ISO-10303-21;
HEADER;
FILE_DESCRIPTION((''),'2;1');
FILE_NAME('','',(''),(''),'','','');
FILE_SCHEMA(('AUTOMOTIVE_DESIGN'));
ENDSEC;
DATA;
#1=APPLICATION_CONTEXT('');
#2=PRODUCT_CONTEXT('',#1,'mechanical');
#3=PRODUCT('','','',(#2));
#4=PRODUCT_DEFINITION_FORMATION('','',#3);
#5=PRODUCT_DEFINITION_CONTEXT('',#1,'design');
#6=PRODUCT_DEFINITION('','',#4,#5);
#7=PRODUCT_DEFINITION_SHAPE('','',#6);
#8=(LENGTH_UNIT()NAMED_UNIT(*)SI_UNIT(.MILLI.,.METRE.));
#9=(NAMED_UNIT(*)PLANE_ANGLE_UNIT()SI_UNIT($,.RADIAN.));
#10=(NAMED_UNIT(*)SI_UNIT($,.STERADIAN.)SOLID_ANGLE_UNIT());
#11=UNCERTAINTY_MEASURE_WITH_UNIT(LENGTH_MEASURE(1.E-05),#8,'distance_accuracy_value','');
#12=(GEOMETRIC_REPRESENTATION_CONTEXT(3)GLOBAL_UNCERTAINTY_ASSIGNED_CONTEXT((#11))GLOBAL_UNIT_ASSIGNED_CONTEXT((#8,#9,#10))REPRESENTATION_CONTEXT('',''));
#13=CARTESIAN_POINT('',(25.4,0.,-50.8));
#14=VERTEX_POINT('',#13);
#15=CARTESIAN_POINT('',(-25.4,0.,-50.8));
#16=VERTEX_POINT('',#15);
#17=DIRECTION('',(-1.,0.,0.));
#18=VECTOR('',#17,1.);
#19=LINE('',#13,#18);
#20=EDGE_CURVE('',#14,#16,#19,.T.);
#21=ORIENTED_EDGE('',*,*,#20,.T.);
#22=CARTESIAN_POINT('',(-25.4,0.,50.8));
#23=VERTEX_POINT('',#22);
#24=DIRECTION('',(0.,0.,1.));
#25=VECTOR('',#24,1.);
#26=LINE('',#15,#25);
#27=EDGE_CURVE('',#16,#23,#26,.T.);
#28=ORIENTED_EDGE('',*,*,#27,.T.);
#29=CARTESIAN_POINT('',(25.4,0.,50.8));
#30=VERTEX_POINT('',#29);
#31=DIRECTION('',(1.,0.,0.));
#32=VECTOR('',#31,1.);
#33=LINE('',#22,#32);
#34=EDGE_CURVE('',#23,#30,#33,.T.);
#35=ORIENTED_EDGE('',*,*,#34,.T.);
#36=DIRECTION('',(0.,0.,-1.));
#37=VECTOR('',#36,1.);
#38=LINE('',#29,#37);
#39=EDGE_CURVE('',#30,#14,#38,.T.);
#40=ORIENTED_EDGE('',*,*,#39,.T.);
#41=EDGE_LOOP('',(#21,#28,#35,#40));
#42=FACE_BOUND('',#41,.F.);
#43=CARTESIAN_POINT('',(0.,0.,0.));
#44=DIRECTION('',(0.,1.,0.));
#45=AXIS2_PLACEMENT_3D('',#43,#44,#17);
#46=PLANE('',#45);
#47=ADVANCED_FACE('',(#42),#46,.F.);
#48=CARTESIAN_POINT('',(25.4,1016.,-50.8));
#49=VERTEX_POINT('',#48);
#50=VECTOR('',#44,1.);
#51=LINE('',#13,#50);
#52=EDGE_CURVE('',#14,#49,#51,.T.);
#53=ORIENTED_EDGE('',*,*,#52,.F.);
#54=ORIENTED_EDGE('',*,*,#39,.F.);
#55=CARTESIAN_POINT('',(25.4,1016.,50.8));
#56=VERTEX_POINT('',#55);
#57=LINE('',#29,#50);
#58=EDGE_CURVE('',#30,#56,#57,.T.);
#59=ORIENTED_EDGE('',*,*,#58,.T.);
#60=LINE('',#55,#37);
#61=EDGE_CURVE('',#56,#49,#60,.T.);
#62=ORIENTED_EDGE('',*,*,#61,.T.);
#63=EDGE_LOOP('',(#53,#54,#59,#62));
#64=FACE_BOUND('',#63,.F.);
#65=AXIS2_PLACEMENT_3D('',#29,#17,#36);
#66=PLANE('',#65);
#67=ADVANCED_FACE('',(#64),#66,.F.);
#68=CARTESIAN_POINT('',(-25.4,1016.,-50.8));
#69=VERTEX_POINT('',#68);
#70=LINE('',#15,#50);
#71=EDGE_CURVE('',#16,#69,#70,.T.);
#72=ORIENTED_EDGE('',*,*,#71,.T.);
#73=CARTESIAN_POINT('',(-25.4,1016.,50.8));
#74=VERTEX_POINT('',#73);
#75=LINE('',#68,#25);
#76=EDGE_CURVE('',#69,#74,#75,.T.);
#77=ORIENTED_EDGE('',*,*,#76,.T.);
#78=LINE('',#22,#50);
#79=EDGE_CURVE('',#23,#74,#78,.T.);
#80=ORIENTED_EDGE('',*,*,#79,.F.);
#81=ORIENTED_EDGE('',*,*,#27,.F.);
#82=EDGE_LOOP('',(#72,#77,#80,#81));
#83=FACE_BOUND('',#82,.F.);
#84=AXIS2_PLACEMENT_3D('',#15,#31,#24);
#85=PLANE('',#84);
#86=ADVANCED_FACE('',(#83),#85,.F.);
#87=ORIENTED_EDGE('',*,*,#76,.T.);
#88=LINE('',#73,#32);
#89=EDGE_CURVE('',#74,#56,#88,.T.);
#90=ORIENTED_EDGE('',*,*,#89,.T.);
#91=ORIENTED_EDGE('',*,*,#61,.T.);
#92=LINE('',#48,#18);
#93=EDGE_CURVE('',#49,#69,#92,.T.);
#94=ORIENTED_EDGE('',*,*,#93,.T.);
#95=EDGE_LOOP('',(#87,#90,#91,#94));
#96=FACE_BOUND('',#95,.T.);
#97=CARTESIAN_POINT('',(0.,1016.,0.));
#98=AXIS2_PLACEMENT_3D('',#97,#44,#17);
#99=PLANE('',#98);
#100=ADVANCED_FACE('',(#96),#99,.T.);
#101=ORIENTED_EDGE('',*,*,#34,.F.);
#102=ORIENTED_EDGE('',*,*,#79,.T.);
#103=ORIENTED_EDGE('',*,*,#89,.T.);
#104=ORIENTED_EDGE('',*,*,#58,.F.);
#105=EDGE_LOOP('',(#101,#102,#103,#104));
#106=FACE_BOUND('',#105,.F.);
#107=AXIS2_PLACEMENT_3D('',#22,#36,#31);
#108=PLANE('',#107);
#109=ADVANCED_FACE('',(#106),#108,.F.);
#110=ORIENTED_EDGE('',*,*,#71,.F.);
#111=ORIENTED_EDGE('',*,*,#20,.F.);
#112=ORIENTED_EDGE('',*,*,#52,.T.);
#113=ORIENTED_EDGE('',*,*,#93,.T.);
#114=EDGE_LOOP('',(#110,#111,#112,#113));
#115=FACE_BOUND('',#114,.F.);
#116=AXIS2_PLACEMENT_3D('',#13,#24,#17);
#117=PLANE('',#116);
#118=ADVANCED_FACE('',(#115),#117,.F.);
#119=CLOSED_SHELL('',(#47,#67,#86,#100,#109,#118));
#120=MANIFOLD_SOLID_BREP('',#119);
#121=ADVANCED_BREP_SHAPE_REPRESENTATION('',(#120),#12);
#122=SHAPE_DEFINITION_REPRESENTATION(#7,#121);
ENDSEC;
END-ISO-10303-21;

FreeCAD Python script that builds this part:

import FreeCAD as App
import Part
import Sketcher
Q = App.Units.Quantity

doc = App.newDocument("Part")
body = doc.addObject("PartDesign::Body", "Body")

sketch1 = body.newObject("Sketcher::SketchObject", "Sketch")
sketch1.AttachmentSupport = (doc.getObject("XZ_Plane"), [""])
sketch1.MapMode = "FlatFace"
sketch1.addGeometry([
    Part.LineSegment(App.Vector(25, 51, 0), App.Vector(25, -51, 0)),
    Part.LineSegment(App.Vector(25, -51, 0), App.Vector(-25, -51, 0)),
    Part.LineSegment(App.Vector(-25, -51, 0), App.Vector(-25, 51, 0)),
    Part.LineSegment(App.Vector(-25, 51, 0), App.Vector(25, 51, 0)),
], False)
sketch1.addConstraint([
    Sketcher.Constraint("Coincident", 0, 2, 1, 1),
    Sketcher.Constraint("Coincident", 1, 2, 2, 1),
    Sketcher.Constraint("Coincident", 2, 2, 3, 1),
    Sketcher.Constraint("Coincident", 3, 2, 0, 1),
    Sketcher.Constraint("Vertical", 0),
    Sketcher.Constraint("Horizontal", 1),
    Sketcher.Constraint("Vertical", 2),
    Sketcher.Constraint("Horizontal", 3),
    Sketcher.Constraint("Symmetric", 0, 2, 2, 2, -1, 1),
    Sketcher.Constraint("DistanceX", 1, 2, 1, 1, Q("2 in")),
    Sketcher.Constraint("DistanceY", 0, 2, 0, 1, Q("4 in")),
])
pad1 = body.newObject("PartDesign::Pad", "Pad")
pad1.Profile = sketch1
pad1.Length = Q("40 in")
pad1.Reversed = True

doc.recompute()
